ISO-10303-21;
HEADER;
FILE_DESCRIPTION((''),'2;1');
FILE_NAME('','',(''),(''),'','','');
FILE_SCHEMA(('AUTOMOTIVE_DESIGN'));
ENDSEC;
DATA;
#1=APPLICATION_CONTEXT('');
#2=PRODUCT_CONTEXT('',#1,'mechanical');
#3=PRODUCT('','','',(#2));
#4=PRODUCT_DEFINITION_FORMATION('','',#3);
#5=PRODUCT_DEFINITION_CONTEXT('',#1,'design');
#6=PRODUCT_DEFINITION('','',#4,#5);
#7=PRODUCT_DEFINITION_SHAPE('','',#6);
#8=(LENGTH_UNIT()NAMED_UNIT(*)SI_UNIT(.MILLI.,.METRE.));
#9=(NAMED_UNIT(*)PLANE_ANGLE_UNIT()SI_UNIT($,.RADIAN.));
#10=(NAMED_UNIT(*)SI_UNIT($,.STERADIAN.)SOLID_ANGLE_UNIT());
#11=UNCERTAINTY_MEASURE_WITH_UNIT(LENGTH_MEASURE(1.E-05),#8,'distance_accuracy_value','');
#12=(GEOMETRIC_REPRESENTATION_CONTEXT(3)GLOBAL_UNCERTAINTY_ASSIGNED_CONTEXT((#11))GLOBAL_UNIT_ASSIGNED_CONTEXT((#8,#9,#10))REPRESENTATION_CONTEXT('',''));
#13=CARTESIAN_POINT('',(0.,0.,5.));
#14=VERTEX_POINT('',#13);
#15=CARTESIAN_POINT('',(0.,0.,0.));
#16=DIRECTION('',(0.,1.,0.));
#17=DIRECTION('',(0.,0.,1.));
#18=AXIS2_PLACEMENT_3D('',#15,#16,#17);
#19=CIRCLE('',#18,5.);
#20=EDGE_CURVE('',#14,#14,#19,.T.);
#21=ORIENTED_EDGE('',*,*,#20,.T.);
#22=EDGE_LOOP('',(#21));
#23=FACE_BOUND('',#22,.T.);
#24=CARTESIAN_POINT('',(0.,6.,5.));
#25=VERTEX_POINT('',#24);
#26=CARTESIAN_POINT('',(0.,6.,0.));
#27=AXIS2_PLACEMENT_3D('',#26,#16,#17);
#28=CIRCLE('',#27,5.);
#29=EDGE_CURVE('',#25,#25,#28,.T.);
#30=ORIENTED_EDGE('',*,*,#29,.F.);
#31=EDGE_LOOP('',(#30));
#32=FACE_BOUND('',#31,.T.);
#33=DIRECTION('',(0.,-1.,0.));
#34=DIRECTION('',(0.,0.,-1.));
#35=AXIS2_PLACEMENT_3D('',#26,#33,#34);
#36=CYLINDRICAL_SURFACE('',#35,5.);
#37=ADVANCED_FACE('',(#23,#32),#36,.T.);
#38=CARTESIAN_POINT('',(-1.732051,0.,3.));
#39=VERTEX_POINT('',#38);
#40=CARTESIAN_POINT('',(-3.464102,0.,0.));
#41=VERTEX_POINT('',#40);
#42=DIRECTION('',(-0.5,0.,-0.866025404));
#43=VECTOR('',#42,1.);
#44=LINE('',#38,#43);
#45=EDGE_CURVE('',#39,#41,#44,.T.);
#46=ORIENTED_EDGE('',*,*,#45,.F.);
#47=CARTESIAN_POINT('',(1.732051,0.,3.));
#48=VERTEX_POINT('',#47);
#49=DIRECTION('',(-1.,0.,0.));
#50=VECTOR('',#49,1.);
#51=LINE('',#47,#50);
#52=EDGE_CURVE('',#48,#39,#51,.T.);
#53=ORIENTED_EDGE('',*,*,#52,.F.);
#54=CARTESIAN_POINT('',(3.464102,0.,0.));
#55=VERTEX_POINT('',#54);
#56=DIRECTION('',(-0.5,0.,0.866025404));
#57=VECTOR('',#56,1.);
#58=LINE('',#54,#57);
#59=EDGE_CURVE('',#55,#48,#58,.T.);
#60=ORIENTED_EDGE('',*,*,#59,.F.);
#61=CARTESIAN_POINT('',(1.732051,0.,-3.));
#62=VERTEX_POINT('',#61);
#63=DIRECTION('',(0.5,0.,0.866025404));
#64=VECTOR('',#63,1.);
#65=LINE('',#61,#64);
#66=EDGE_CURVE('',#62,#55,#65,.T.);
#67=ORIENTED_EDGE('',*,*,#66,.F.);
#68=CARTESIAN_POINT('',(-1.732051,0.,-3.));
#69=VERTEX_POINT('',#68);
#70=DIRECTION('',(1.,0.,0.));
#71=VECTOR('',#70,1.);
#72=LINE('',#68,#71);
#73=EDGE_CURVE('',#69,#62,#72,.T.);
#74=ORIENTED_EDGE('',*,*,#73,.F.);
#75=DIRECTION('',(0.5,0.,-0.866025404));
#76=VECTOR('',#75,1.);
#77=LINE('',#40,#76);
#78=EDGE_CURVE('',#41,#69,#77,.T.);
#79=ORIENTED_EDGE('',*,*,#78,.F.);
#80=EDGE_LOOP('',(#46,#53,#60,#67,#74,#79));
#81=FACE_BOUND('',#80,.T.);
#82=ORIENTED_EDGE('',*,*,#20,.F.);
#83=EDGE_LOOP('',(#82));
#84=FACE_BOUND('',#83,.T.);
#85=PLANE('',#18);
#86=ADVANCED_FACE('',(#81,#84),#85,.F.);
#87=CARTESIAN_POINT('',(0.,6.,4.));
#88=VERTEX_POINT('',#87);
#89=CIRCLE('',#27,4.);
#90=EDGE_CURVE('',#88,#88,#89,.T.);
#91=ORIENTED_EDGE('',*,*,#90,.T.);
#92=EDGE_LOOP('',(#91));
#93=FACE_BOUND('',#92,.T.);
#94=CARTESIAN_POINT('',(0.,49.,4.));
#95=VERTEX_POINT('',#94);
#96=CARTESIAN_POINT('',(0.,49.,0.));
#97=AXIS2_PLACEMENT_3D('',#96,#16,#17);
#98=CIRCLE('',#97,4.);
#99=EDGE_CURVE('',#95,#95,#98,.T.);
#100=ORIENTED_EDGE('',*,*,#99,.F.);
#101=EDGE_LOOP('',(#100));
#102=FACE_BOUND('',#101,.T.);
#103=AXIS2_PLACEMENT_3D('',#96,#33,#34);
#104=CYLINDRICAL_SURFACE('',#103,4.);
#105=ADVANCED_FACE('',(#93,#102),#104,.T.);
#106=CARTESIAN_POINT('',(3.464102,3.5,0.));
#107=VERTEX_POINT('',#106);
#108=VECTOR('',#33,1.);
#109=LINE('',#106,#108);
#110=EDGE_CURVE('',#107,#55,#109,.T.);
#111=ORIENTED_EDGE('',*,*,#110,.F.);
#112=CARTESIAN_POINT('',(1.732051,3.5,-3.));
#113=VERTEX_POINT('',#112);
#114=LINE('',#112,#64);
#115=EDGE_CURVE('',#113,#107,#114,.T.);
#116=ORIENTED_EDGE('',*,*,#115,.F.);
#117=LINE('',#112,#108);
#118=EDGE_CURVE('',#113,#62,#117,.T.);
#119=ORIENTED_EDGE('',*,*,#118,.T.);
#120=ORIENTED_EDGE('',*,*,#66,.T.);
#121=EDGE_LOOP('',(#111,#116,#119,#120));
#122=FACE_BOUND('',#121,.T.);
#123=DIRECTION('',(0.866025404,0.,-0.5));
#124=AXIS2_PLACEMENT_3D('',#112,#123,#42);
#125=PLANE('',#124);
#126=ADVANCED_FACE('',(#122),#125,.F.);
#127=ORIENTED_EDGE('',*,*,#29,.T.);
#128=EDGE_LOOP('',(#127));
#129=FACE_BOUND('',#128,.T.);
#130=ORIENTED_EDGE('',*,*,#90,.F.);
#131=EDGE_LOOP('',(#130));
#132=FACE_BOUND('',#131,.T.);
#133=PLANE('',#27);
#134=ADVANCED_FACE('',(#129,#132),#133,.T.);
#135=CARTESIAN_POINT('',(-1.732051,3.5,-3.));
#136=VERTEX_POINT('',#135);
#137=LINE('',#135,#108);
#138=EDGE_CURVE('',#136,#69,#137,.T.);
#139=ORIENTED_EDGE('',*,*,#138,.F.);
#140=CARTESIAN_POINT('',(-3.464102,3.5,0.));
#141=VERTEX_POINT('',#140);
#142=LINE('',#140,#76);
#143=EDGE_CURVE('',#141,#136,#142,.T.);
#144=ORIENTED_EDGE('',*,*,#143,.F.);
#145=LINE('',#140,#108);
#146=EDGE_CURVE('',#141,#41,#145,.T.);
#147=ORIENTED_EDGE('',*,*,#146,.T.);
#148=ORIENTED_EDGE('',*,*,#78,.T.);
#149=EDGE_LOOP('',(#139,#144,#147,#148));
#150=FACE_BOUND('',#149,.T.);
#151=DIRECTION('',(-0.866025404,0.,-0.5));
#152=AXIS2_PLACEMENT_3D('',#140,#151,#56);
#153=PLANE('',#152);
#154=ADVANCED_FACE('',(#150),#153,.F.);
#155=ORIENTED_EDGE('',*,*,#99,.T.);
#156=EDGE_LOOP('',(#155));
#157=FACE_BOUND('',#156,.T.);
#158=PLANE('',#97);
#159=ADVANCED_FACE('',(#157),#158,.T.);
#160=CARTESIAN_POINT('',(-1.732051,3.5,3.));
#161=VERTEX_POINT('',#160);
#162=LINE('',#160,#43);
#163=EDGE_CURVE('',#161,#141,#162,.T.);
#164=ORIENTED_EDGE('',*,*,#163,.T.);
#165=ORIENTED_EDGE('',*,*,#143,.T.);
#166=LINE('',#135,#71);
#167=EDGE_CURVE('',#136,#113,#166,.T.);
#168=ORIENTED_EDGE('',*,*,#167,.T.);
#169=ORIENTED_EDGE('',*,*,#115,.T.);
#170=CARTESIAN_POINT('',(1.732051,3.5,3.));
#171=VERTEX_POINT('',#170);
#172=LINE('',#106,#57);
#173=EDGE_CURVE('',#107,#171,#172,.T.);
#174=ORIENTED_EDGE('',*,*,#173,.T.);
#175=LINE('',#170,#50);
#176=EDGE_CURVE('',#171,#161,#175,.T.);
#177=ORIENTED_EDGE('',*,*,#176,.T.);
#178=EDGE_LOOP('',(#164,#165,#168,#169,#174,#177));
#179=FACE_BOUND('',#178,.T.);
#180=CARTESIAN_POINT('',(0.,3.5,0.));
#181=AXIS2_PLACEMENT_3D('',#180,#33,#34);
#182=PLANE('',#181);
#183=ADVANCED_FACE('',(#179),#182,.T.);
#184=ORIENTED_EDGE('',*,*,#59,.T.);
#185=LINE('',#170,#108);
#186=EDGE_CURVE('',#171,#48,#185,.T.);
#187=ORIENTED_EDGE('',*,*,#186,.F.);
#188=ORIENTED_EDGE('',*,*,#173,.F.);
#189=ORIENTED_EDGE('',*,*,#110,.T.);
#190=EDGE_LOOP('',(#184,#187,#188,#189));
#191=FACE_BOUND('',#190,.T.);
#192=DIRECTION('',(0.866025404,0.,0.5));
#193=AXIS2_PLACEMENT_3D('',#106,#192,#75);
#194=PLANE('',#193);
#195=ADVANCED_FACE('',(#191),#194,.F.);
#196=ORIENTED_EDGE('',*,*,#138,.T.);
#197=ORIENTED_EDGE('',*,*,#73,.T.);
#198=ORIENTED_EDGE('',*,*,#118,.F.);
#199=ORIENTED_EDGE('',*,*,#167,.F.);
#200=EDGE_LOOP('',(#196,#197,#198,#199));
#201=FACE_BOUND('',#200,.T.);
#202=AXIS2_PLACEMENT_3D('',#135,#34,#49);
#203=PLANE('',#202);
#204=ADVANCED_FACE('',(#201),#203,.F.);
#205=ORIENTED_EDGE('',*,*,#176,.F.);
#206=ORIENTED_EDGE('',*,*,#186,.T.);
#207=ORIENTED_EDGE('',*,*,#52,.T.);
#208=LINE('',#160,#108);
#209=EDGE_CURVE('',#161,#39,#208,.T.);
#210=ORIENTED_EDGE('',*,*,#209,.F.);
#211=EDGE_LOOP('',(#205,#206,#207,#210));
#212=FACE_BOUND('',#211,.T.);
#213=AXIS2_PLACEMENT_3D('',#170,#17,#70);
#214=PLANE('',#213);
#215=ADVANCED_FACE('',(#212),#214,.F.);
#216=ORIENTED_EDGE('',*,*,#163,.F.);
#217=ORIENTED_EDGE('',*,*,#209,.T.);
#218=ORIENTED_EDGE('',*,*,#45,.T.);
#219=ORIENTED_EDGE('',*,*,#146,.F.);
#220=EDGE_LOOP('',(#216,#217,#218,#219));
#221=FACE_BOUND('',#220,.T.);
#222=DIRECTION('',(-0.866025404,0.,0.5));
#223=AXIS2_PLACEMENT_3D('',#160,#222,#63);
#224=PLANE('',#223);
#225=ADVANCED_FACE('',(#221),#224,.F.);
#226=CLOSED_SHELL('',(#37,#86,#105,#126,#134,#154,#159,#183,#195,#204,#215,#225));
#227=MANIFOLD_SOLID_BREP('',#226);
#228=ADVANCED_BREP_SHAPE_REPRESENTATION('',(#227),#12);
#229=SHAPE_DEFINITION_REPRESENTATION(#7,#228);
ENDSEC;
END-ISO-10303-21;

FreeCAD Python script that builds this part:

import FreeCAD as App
import Part
import Sketcher
Q = App.Units.Quantity

doc = App.newDocument("Part")
body = doc.addObject("PartDesign::Body", "Body")

sketch1 = body.newObject("Sketcher::SketchObject", "Sketch")
sketch1.AttachmentSupport = (doc.getObject("XZ_Plane"), [""])
sketch1.MapMode = "FlatFace"
sketch1.addGeometry(Part.Circle(App.Vector(0, 0, 0), App.Vector(0, 0, 1), 5), False)
sketch1.addConstraint(Sketcher.Constraint("Coincident", 0, 3, -1, 1))
sketch1.addConstraint(Sketcher.Constraint("Diameter", 0, 10.0))
pad1 = body.newObject("PartDesign::Pad", "Pad")
pad1.Profile = sketch1
pad1.Length = 6
pad1.Reversed = True

sketch2 = body.newObject("Sketcher::SketchObject", "Sketch001")
sketch2.AttachmentSupport = (doc.getObject("XZ_Plane"), [""])
sketch2.MapMode = "FlatFace"
sketch2.AttachmentOffset = App.Placement(App.Vector(0, 0, -6), App.Rotation())
sketch2.addGeometry(Part.Circle(App.Vector(0, 0, 0), App.Vector(0, 0, 1), 4), False)
sketch2.addConstraint(Sketcher.Constraint("Coincident", 0, 3, -1, 1))
sketch2.addConstraint(Sketcher.Constraint("Diameter", 0, 8.0))
pad2 = body.newObject("PartDesign::Pad", "Pad001")
pad2.Profile = sketch2
pad2.Length = 43
pad2.Reversed = True

sketch3 = body.newObject("Sketcher::SketchObject", "Sketch002")
sketch3.AttachmentSupport = (doc.getObject("XZ_Plane"), [""])
sketch3.MapMode = "FlatFace"
sketch3.addGeometry(Part.LineSegment(App.Vector(3.5, 0, 0), App.Vector(1.7, 3, 0)), False)
sketch3.addGeometry(Part.LineSegment(App.Vector(1.7, 3, 0), App.Vector(-1.7, 3, 0)), False)
sketch3.addGeometry(Part.LineSegment(App.Vector(-1.7, 3, 0), App.Vector(-3.5, 0, 0)), False)
sketch3.addGeometry(Part.LineSegment(App.Vector(-3.5, 0, 0), App.Vector(-1.7, -3, 0)), False)
sketch3.addGeometry(Part.LineSegment(App.Vector(-1.7, -3, 0), App.Vector(1.7, -3, 0)), False)
sketch3.addGeometry(Part.LineSegment(App.Vector(1.7, -3, 0), App.Vector(3.5, 0, 0)), False)
sketch3.addConstraint(Sketcher.Constraint("Coincident", 0, 2, 1, 1))
sketch3.addConstraint(Sketcher.Constraint("Coincident", 1, 2, 2, 1))
sketch3.addConstraint(Sketcher.Constraint("Coincident", 2, 2, 3, 1))
sketch3.addConstraint(Sketcher.Constraint("Coincident", 3, 2, 4, 1))
sketch3.addConstraint(Sketcher.Constraint("Coincident", 4, 2, 5, 1))
sketch3.addConstraint(Sketcher.Constraint("Coincident", 5, 2, 0, 1))
sketch3.addConstraint(Sketcher.Constraint("Horizontal", 1))
sketch3.addConstraint(Sketcher.Constraint("Horizontal", 4))
sketch3.addConstraint(Sketcher.Constraint("Symmetric", 0, 2, 3, 2, -1, 1))
sketch3.addConstraint(Sketcher.Constraint("Symmetric", 2, 2, 5, 2, -1, 1))
sketch3.addConstraint(Sketcher.Constraint("PointOnObject", 2, 2, -1))
sketch3.addConstraint(Sketcher.Constraint("Parallel", 2, 5))
sketch3.addConstraint(Sketcher.Constraint("Vertical", 1, 2, 3, 2))
sketch3.addConstraint(Sketcher.Constraint("Angle", 0, Q("120 deg")))
sketch3.addConstraint(Sketcher.Constraint("DistanceY", -1, 1, 0, 2, 3.0))
sketch3.addConstraint(Sketcher.Constraint("DistanceX", 1, 2, 1, 1, 3.464102))
pocket1 = body.newObject("PartDesign::Pocket", "Pocket")
pocket1.Profile = sketch3
pocket1.Length = 3.5

doc.recompute()
